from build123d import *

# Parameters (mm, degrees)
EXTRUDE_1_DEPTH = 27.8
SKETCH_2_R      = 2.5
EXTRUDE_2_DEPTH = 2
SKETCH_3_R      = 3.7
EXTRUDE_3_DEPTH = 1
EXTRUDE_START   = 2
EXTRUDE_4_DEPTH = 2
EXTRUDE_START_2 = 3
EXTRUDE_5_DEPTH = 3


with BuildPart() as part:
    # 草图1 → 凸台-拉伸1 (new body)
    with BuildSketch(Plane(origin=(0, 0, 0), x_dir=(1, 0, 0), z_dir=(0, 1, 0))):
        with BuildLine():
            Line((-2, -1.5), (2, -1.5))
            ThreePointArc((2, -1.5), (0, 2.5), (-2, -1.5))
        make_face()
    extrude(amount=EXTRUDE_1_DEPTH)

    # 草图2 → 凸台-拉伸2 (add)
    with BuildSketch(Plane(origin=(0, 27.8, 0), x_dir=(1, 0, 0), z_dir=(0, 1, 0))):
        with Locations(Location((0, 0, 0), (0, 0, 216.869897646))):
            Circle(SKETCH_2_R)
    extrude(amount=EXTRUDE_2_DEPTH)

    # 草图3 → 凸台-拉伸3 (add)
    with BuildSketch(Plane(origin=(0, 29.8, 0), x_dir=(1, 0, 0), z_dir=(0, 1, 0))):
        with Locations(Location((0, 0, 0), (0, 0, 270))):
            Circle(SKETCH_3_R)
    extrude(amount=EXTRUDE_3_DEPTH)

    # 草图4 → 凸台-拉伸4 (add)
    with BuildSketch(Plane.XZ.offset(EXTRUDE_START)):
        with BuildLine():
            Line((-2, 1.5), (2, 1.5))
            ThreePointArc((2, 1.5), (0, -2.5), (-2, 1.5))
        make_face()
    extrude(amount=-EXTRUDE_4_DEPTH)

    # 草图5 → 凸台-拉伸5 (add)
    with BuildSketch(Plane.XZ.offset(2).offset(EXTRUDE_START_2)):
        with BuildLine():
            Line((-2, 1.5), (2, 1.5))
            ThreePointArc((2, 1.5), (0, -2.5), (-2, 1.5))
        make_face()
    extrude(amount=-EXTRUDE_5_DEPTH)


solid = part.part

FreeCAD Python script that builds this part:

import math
import FreeCAD as App
import Part
import Sketcher
Q = App.Units.Quantity

doc = App.newDocument("Part")
params = doc.addObject("Spreadsheet::Sheet", "Params")
for row, (alias, value) in enumerate([
    ("sketch1_radius", "2.5 mm"),
    ("sketch1_width", "4 mm"),
    ("pad1_length", "27.8 mm"),
    ("sketch2_diameter", "5 mm"),
    ("pad2_length", "2 mm"),
    ("sketch3_diameter", "7.4 mm"),
    ("pad3_length", "1 mm"),
    ("sketch4_radius", "2.5 mm"),
    ("sketch4_width", "4 mm"),
    ("pad4_length", "2 mm"),
    ("sketch5_radius", "2.5 mm"),
    ("sketch5_width", "4 mm"),
    ("pad5_length", "3 mm"),
], start=1):
    params.set(f"A{row}", alias)
    params.set(f"B{row}", "=" + value)
    params.setAlias(f"B{row}", alias)

body = doc.addObject("PartDesign::Body", "Body")

# Sketch on XZ plane
sketch1 = body.newObject("Sketcher::SketchObject", "Sketch")
sketch1.AttachmentSupport = (doc.getObject("XZ_Plane"), [""])
sketch1.MapMode = "FlatFace"
sketch1.addGeometry([
    Part.LineSegment(App.Vector(-2, 1.5, 0), App.Vector(2, 1.5, 0)),
    Part.ArcOfCircle(Part.Circle(App.Vector(0, 0, 0), App.Vector(0, 0, 1), 2.5), math.radians(143.130102), math.radians(396.869898)),
], False)
sketch1.addConstraint([
    Sketcher.Constraint("Coincident", 0, 1, 1, 1),
    Sketcher.Constraint("Coincident", 1, 2, 0, 2),
    Sketcher.Constraint("Horizontal", 0),
    Sketcher.Constraint("Coincident", 1, 3, -1, 1),
    Sketcher.Constraint("Radius", 1, Q("2.5 mm")),
    Sketcher.Constraint("DistanceX", 0, 1, 0, 2, Q("4 mm")),
])
sketch1.setExpression("Constraints[4]", "Params.sketch1_radius")
sketch1.setExpression("Constraints[5]", "Params.sketch1_width")
pad1 = body.newObject("PartDesign::Pad", "Pad")
pad1.Profile = sketch1
pad1.setExpression("Length", "Params.pad1_length")
pad1.Reversed = True

# Sketch on XZ plane
sketch2 = body.newObject("Sketcher::SketchObject", "Sketch001")
sketch2.AttachmentSupport = (doc.getObject("XZ_Plane"), [""])
sketch2.MapMode = "FlatFace"
sketch2.AttachmentOffset = App.Placement(App.Vector(0, 0, -27.8), App.Rotation())
sketch2.addGeometry(Part.Circle(App.Vector(0, 0, 0), App.Vector(0, 0, 1), 2.5), False)
sketch2.addConstraint([
    Sketcher.Constraint("Coincident", 0, 3, -1, 1),
    Sketcher.Constraint("Diameter", 0, Q("5 mm")),
])
sketch2.setExpression("Constraints[1]", "Params.sketch2_diameter")
pad2 = body.newObject("PartDesign::Pad", "Pad001")
pad2.Profile = sketch2
pad2.setExpression("Length", "Params.pad2_length")
pad2.Reversed = True

# Sketch on XZ plane
sketch3 = body.newObject("Sketcher::SketchObject", "Sketch002")
sketch3.AttachmentSupport = (doc.getObject("XZ_Plane"), [""])
sketch3.MapMode = "FlatFace"
sketch3.AttachmentOffset = App.Placement(App.Vector(0, 0, -29.8), App.Rotation())
sketch3.addGeometry(Part.Circle(App.Vector(0, 0, 0), App.Vector(0, 0, 1), 3.7), False)
sketch3.addConstraint([
    Sketcher.Constraint("Coincident", 0, 3, -1, 1),
    Sketcher.Constraint("Diameter", 0, Q("7.4 mm")),
])
sketch3.setExpression("Constraints[1]", "Params.sketch3_diameter")
pad3 = body.newObject("PartDesign::Pad", "Pad002")
pad3.Profile = sketch3
pad3.setExpression("Length", "Params.pad3_length")
pad3.Reversed = True

# Sketch on XZ plane
sketch4 = body.newObject("Sketcher::SketchObject", "Sketch003")
sketch4.AttachmentSupport = (doc.getObject("XZ_Plane"), [""])
sketch4.MapMode = "FlatFace"
sketch4.AttachmentOffset = App.Placement(App.Vector(0, 0, 2), App.Rotation())
sketch4.addGeometry([
    Part.LineSegment(App.Vector(2, 1.5, 0), App.Vector(-2, 1.5, 0)),
    Part.ArcOfCircle(Part.Circle(App.Vector(0, 0, 0), App.Vector(0, 0, 1), 2.5), math.radians(143.130102), math.radians(396.869898)),
], False)
sketch4.addConstraint([
    Sketcher.Constraint("Coincident", 0, 1, 1, 2),
    Sketcher.Constraint("Coincident", 1, 1, 0, 2),
    Sketcher.Constraint("Horizontal", 0),
    Sketcher.Constraint("Coincident", 1, 3, -1, 1),
    Sketcher.Constraint("Radius", 1, Q("2.5 mm")),
    Sketcher.Constraint("DistanceX", 0, 2, 0, 1, Q("4 mm")),
])
sketch4.setExpression("Constraints[4]", "Params.sketch4_radius")
sketch4.setExpression("Constraints[5]", "Params.sketch4_width")
pad4 = body.newObject("PartDesign::Pad", "Pad003")
pad4.Profile = sketch4
pad4.setExpression("Length", "Params.pad4_length")
pad4.Reversed = True

# Sketch on XZ plane
sketch5 = body.newObject("Sketcher::SketchObject", "Sketch004")
sketch5.AttachmentSupport = (doc.getObject("XZ_Plane"), [""])
sketch5.MapMode = "FlatFace"
sketch5.AttachmentOffset = App.Placement(App.Vector(0, 0, 5), App.Rotation())
sketch5.addGeometry([
    Part.LineSegment(App.Vector(2, 1.5, 0), App.Vector(-2, 1.5, 0)),
    Part.ArcOfCircle(Part.Circle(App.Vector(0, 0, 0), App.Vector(0, 0, 1), 2.5), math.radians(143.130102), math.radians(396.869898)),
], False)
sketch5.addConstraint([
    Sketcher.Constraint("Coincident", 0, 1, 1, 2),
    Sketcher.Constraint("Coincident", 1, 1, 0, 2),
    Sketcher.Constraint("Horizontal", 0),
    Sketcher.Constraint("Coincident", 1, 3, -1, 1),
    Sketcher.Constraint("Radius", 1, Q("2.5 mm")),
    Sketcher.Constraint("DistanceX", 0, 2, 0, 1, Q("4 mm")),
])
sketch5.setExpression("Constraints[4]", "Params.sketch5_radius")
sketch5.setExpression("Constraints[5]", "Params.sketch5_width")
pad5 = body.newObject("PartDesign::Pad", "Pad004")
pad5.Profile = sketch5
pad5.setExpression("Length", "Params.pad5_length")
pad5.Reversed = True

doc.recompute()
